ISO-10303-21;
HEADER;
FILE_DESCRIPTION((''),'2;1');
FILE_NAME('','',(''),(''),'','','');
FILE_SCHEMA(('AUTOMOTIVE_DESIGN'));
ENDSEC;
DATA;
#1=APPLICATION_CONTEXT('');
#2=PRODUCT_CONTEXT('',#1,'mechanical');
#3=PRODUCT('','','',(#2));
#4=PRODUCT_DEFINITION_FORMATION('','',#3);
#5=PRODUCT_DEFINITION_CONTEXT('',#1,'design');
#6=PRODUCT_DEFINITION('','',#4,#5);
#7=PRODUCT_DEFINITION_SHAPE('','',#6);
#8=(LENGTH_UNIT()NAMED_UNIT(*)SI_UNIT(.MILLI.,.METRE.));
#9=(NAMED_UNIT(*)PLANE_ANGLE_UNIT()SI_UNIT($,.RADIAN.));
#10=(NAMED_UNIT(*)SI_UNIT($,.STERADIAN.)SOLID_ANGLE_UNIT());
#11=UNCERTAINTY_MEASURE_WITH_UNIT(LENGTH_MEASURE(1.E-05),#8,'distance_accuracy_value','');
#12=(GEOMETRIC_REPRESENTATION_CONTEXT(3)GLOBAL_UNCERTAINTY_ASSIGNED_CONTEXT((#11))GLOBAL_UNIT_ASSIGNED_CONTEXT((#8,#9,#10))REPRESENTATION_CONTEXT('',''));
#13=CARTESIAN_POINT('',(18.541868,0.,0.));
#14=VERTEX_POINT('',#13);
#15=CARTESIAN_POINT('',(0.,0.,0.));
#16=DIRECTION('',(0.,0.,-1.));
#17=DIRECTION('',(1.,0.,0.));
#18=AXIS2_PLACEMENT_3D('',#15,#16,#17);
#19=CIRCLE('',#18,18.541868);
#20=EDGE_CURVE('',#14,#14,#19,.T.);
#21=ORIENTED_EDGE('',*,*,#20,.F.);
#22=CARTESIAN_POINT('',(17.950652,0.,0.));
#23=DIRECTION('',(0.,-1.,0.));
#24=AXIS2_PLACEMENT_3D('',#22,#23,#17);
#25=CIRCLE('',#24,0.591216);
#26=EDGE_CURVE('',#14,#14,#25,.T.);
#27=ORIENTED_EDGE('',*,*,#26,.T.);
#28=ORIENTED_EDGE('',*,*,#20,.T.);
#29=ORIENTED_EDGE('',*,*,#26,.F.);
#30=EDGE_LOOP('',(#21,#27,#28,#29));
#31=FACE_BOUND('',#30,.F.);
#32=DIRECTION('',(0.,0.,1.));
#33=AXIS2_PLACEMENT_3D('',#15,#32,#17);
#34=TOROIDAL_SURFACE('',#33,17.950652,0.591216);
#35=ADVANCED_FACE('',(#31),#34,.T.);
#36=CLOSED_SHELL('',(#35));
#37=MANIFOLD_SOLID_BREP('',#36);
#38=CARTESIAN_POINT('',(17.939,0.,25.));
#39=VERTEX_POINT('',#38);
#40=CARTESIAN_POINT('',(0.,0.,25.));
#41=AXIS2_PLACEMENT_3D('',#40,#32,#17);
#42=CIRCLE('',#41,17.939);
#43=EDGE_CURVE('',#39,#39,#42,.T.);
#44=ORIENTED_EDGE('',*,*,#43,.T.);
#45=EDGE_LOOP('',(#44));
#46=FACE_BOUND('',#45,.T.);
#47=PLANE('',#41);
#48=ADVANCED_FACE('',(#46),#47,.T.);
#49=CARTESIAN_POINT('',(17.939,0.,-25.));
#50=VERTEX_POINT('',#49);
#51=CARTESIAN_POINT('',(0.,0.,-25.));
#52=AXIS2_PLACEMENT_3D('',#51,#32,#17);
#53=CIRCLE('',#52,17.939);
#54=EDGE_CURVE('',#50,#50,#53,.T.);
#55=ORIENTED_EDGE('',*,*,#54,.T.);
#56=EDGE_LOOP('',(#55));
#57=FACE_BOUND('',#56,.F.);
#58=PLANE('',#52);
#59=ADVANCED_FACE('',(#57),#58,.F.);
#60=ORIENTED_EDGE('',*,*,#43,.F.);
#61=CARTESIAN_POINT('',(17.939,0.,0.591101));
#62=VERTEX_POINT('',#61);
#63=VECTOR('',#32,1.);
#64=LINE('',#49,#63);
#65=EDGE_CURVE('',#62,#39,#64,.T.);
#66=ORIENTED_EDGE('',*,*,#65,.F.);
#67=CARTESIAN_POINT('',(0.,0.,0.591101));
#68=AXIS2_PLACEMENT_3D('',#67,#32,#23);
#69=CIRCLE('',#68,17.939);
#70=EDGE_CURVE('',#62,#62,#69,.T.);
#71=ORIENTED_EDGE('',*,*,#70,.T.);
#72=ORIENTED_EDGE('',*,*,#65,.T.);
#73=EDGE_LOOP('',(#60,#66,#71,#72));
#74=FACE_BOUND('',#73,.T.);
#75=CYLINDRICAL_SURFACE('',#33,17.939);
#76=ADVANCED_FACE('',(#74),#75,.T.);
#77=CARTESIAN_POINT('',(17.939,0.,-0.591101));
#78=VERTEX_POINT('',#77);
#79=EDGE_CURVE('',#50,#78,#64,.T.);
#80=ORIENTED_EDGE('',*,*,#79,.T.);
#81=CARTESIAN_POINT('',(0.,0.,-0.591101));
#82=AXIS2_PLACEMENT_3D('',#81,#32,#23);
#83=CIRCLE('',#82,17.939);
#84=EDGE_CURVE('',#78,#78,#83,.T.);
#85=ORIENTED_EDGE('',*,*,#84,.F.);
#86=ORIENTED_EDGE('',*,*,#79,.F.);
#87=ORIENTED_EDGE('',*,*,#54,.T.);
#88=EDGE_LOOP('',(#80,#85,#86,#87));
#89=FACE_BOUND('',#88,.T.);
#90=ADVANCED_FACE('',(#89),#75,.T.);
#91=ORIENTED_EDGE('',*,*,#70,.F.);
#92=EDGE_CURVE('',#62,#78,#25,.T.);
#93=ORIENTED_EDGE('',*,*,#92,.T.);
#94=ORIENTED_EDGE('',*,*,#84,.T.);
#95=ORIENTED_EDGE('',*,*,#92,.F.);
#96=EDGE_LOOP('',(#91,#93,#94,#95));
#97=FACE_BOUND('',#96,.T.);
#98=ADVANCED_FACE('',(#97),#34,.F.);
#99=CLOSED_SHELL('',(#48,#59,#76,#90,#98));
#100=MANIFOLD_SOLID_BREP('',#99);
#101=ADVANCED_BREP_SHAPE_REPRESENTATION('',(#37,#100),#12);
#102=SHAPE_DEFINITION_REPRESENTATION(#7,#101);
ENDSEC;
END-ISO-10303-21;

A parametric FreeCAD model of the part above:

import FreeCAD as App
import Part
import Sketcher
from FreeCAD import Vector

doc = App.newDocument("Part")
body = doc.addObject("PartDesign::Body", "Body")

sketch1 = body.newObject("Sketcher::SketchObject", "Sketch")
sketch1.AttachmentSupport = (doc.getObject("XY_Plane"), [""])
sketch1.MapMode = "FlatFace"
sketch1.addGeometry(Part.Circle(Vector(0, 0, 0), Vector(0, 0, 1), 18), False)
sketch1.addConstraint([
    Sketcher.Constraint("Coincident", 0, 3, -1, 1),
    Sketcher.Constraint("Diameter", 0, 35.878),
])
pad1 = body.newObject("PartDesign::Pad", "Pad")
pad1.Profile = sketch1
pad1.Length = 50
pad1.Midplane = True

sketch2 = body.newObject("Sketcher::SketchObject", "Sketch001")
sketch2.AttachmentSupport = (doc.getObject("XZ_Plane"), [""])
sketch2.MapMode = "FlatFace"
sketch2.addGeometry(Part.Circle(Vector(18, 0, 0), Vector(0, 0, 1), 0.6), False)
sketch2.addConstraint([
    Sketcher.Constraint("PointOnObject", 0, 3, -1),
    Sketcher.Constraint("Diameter", 0, 1.182432),
    Sketcher.Constraint("DistanceX", -1, 1, 0, 3, 17.950652),
])
groove = body.newObject("PartDesign::Groove", "Groove")
groove.Profile = sketch2
groove.ReferenceAxis = (sketch2, ["V_Axis"])
groove.Angle = 360
body2 = doc.addObject("PartDesign::Body", "Body001")

sketch3 = body2.newObject("Sketcher::SketchObject", "Sketch002")
sketch3.AttachmentSupport = (doc.getObject("XZ_Plane001"), [""])
sketch3.MapMode = "FlatFace"
sketch3.addGeometry(Part.Circle(Vector(18, 0, 0), Vector(0, 0, 1), 0.6), False)
sketch3.addConstraint([
    Sketcher.Constraint("PointOnObject", 0, 3, -1),
    Sketcher.Constraint("Diameter", 0, 1.182432),
    Sketcher.Constraint("DistanceX", -1, 1, 0, 3, 17.950652),
])
revolution = body2.newObject("PartDesign::Revolution", "Revolution")
revolution.Profile = sketch3
revolution.ReferenceAxis = (sketch3, ["V_Axis"])
revolution.Angle = 360

doc.recompute()
